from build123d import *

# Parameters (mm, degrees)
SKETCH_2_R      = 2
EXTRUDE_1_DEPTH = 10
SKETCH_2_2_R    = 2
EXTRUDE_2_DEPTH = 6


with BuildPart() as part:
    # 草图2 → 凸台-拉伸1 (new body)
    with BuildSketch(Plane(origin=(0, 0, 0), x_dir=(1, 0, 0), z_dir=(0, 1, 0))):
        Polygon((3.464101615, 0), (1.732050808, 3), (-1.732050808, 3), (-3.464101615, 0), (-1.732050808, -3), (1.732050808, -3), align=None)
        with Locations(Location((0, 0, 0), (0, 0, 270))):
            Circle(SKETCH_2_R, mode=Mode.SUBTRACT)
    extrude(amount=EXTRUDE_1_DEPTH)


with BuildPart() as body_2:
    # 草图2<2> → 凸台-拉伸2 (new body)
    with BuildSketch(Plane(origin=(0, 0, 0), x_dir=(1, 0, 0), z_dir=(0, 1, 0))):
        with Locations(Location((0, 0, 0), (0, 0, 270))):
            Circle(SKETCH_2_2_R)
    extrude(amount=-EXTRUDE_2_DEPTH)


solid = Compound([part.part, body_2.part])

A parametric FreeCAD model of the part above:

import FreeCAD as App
import Part
import Sketcher
from FreeCAD import Vector
Q = App.Units.Quantity

doc = App.newDocument("Part")
body = doc.addObject("PartDesign::Body", "Body")

# Sketch on XZ plane
sketch1 = doc.addObject("Sketcher::SketchObject", "Sketch")
body.addObject(sketch1)
sketch1.AttachmentSupport = (doc.XZ_Plane, [""])
sketch1.MapMode = "FlatFace"
sketch1.addGeometry(Part.LineSegment(Vector(3.5, 0, 0), Vector(1.7, -3, 0)), False)
sketch1.addGeometry(Part.LineSegment(Vector(1.7, -3, 0), Vector(-1.7, -3, 0)), False)
sketch1.addGeometry(Part.LineSegment(Vector(-1.7, -3, 0), Vector(-3.5, 0, 0)), False)
sketch1.addGeometry(Part.LineSegment(Vector(-3.5, 0, 0), Vector(-1.7, 3, 0)), False)
sketch1.addGeometry(Part.LineSegment(Vector(-1.7, 3, 0), Vector(1.7, 3, 0)), False)
sketch1.addGeometry(Part.LineSegment(Vector(1.7, 3, 0), Vector(3.5, 0, 0)), False)
sketch1.addGeometry(Part.Circle(Vector(0, 0, 0), Vector(0, 0, 1), 2), False)
sketch1.addConstraint(Sketcher.Constraint("Coincident", 0, 2, 1, 1))
sketch1.addConstraint(Sketcher.Constraint("Coincident", 1, 2, 2, 1))
sketch1.addConstraint(Sketcher.Constraint("Coincident", 2, 2, 3, 1))
sketch1.addConstraint(Sketcher.Constraint("Coincident", 3, 2, 4, 1))
sketch1.addConstraint(Sketcher.Constraint("Coincident", 4, 2, 5, 1))
sketch1.addConstraint(Sketcher.Constraint("Coincident", 5, 2, 0, 1))
sketch1.addConstraint(Sketcher.Constraint("Horizontal", 1))
sketch1.addConstraint(Sketcher.Constraint("Horizontal", 4))
sketch1.addConstraint(Sketcher.Constraint("Coincident", 6, 3, -1, 1))
sketch1.addConstraint(Sketcher.Constraint("Symmetric", 0, 2, 3, 2, -1, 1))
sketch1.addConstraint(Sketcher.Constraint("Symmetric", 2, 2, 5, 2, -1, 1))
sketch1.addConstraint(Sketcher.Constraint("PointOnObject", 2, 2, -1))
sketch1.addConstraint(Sketcher.Constraint("Parallel", 2, 5))
sketch1.addConstraint(Sketcher.Constraint("Vertical", 1, 2, 3, 2))
sketch1.addConstraint(Sketcher.Constraint("Diameter", 6, Q("4 mm")))
sketch1.addConstraint(Sketcher.Constraint("Angle", 0, Q("-120 deg")))
sketch1.addConstraint(Sketcher.Constraint("DistanceY", 0, 2, -1, 1, Q("3 mm")))
sketch1.addConstraint(Sketcher.Constraint("DistanceX", 1, 2, 1, 1, Q("3.464102 mm")))
pad1 = doc.addObject("PartDesign::Pad", "Pad")
body.addObject(pad1)
pad1.Profile = sketch1
pad1.Length = 10
pad1.Reversed = True
body2 = doc.addObject("PartDesign::Body", "Body001")

# Sketch on XZ plane
sketch2 = doc.addObject("Sketcher::SketchObject", "Sketch001")
body2.addObject(sketch2)
sketch2.AttachmentSupport = (doc.getObject("XZ_Plane001"), [""])
sketch2.MapMode = "FlatFace"
sketch2.addGeometry(Part.Circle(Vector(0, 0, 0), Vector(0, 0, 1), 2), False)
sketch2.addConstraint(Sketcher.Constraint("Coincident", 0, 3, -1, 1))
sketch2.addConstraint(Sketcher.Constraint("Diameter", 0, Q("4 mm")))
pad2 = doc.addObject("PartDesign::Pad", "Pad001")
body2.addObject(pad2)
pad2.Profile = sketch2
pad2.Length = 6

doc.recompute()
